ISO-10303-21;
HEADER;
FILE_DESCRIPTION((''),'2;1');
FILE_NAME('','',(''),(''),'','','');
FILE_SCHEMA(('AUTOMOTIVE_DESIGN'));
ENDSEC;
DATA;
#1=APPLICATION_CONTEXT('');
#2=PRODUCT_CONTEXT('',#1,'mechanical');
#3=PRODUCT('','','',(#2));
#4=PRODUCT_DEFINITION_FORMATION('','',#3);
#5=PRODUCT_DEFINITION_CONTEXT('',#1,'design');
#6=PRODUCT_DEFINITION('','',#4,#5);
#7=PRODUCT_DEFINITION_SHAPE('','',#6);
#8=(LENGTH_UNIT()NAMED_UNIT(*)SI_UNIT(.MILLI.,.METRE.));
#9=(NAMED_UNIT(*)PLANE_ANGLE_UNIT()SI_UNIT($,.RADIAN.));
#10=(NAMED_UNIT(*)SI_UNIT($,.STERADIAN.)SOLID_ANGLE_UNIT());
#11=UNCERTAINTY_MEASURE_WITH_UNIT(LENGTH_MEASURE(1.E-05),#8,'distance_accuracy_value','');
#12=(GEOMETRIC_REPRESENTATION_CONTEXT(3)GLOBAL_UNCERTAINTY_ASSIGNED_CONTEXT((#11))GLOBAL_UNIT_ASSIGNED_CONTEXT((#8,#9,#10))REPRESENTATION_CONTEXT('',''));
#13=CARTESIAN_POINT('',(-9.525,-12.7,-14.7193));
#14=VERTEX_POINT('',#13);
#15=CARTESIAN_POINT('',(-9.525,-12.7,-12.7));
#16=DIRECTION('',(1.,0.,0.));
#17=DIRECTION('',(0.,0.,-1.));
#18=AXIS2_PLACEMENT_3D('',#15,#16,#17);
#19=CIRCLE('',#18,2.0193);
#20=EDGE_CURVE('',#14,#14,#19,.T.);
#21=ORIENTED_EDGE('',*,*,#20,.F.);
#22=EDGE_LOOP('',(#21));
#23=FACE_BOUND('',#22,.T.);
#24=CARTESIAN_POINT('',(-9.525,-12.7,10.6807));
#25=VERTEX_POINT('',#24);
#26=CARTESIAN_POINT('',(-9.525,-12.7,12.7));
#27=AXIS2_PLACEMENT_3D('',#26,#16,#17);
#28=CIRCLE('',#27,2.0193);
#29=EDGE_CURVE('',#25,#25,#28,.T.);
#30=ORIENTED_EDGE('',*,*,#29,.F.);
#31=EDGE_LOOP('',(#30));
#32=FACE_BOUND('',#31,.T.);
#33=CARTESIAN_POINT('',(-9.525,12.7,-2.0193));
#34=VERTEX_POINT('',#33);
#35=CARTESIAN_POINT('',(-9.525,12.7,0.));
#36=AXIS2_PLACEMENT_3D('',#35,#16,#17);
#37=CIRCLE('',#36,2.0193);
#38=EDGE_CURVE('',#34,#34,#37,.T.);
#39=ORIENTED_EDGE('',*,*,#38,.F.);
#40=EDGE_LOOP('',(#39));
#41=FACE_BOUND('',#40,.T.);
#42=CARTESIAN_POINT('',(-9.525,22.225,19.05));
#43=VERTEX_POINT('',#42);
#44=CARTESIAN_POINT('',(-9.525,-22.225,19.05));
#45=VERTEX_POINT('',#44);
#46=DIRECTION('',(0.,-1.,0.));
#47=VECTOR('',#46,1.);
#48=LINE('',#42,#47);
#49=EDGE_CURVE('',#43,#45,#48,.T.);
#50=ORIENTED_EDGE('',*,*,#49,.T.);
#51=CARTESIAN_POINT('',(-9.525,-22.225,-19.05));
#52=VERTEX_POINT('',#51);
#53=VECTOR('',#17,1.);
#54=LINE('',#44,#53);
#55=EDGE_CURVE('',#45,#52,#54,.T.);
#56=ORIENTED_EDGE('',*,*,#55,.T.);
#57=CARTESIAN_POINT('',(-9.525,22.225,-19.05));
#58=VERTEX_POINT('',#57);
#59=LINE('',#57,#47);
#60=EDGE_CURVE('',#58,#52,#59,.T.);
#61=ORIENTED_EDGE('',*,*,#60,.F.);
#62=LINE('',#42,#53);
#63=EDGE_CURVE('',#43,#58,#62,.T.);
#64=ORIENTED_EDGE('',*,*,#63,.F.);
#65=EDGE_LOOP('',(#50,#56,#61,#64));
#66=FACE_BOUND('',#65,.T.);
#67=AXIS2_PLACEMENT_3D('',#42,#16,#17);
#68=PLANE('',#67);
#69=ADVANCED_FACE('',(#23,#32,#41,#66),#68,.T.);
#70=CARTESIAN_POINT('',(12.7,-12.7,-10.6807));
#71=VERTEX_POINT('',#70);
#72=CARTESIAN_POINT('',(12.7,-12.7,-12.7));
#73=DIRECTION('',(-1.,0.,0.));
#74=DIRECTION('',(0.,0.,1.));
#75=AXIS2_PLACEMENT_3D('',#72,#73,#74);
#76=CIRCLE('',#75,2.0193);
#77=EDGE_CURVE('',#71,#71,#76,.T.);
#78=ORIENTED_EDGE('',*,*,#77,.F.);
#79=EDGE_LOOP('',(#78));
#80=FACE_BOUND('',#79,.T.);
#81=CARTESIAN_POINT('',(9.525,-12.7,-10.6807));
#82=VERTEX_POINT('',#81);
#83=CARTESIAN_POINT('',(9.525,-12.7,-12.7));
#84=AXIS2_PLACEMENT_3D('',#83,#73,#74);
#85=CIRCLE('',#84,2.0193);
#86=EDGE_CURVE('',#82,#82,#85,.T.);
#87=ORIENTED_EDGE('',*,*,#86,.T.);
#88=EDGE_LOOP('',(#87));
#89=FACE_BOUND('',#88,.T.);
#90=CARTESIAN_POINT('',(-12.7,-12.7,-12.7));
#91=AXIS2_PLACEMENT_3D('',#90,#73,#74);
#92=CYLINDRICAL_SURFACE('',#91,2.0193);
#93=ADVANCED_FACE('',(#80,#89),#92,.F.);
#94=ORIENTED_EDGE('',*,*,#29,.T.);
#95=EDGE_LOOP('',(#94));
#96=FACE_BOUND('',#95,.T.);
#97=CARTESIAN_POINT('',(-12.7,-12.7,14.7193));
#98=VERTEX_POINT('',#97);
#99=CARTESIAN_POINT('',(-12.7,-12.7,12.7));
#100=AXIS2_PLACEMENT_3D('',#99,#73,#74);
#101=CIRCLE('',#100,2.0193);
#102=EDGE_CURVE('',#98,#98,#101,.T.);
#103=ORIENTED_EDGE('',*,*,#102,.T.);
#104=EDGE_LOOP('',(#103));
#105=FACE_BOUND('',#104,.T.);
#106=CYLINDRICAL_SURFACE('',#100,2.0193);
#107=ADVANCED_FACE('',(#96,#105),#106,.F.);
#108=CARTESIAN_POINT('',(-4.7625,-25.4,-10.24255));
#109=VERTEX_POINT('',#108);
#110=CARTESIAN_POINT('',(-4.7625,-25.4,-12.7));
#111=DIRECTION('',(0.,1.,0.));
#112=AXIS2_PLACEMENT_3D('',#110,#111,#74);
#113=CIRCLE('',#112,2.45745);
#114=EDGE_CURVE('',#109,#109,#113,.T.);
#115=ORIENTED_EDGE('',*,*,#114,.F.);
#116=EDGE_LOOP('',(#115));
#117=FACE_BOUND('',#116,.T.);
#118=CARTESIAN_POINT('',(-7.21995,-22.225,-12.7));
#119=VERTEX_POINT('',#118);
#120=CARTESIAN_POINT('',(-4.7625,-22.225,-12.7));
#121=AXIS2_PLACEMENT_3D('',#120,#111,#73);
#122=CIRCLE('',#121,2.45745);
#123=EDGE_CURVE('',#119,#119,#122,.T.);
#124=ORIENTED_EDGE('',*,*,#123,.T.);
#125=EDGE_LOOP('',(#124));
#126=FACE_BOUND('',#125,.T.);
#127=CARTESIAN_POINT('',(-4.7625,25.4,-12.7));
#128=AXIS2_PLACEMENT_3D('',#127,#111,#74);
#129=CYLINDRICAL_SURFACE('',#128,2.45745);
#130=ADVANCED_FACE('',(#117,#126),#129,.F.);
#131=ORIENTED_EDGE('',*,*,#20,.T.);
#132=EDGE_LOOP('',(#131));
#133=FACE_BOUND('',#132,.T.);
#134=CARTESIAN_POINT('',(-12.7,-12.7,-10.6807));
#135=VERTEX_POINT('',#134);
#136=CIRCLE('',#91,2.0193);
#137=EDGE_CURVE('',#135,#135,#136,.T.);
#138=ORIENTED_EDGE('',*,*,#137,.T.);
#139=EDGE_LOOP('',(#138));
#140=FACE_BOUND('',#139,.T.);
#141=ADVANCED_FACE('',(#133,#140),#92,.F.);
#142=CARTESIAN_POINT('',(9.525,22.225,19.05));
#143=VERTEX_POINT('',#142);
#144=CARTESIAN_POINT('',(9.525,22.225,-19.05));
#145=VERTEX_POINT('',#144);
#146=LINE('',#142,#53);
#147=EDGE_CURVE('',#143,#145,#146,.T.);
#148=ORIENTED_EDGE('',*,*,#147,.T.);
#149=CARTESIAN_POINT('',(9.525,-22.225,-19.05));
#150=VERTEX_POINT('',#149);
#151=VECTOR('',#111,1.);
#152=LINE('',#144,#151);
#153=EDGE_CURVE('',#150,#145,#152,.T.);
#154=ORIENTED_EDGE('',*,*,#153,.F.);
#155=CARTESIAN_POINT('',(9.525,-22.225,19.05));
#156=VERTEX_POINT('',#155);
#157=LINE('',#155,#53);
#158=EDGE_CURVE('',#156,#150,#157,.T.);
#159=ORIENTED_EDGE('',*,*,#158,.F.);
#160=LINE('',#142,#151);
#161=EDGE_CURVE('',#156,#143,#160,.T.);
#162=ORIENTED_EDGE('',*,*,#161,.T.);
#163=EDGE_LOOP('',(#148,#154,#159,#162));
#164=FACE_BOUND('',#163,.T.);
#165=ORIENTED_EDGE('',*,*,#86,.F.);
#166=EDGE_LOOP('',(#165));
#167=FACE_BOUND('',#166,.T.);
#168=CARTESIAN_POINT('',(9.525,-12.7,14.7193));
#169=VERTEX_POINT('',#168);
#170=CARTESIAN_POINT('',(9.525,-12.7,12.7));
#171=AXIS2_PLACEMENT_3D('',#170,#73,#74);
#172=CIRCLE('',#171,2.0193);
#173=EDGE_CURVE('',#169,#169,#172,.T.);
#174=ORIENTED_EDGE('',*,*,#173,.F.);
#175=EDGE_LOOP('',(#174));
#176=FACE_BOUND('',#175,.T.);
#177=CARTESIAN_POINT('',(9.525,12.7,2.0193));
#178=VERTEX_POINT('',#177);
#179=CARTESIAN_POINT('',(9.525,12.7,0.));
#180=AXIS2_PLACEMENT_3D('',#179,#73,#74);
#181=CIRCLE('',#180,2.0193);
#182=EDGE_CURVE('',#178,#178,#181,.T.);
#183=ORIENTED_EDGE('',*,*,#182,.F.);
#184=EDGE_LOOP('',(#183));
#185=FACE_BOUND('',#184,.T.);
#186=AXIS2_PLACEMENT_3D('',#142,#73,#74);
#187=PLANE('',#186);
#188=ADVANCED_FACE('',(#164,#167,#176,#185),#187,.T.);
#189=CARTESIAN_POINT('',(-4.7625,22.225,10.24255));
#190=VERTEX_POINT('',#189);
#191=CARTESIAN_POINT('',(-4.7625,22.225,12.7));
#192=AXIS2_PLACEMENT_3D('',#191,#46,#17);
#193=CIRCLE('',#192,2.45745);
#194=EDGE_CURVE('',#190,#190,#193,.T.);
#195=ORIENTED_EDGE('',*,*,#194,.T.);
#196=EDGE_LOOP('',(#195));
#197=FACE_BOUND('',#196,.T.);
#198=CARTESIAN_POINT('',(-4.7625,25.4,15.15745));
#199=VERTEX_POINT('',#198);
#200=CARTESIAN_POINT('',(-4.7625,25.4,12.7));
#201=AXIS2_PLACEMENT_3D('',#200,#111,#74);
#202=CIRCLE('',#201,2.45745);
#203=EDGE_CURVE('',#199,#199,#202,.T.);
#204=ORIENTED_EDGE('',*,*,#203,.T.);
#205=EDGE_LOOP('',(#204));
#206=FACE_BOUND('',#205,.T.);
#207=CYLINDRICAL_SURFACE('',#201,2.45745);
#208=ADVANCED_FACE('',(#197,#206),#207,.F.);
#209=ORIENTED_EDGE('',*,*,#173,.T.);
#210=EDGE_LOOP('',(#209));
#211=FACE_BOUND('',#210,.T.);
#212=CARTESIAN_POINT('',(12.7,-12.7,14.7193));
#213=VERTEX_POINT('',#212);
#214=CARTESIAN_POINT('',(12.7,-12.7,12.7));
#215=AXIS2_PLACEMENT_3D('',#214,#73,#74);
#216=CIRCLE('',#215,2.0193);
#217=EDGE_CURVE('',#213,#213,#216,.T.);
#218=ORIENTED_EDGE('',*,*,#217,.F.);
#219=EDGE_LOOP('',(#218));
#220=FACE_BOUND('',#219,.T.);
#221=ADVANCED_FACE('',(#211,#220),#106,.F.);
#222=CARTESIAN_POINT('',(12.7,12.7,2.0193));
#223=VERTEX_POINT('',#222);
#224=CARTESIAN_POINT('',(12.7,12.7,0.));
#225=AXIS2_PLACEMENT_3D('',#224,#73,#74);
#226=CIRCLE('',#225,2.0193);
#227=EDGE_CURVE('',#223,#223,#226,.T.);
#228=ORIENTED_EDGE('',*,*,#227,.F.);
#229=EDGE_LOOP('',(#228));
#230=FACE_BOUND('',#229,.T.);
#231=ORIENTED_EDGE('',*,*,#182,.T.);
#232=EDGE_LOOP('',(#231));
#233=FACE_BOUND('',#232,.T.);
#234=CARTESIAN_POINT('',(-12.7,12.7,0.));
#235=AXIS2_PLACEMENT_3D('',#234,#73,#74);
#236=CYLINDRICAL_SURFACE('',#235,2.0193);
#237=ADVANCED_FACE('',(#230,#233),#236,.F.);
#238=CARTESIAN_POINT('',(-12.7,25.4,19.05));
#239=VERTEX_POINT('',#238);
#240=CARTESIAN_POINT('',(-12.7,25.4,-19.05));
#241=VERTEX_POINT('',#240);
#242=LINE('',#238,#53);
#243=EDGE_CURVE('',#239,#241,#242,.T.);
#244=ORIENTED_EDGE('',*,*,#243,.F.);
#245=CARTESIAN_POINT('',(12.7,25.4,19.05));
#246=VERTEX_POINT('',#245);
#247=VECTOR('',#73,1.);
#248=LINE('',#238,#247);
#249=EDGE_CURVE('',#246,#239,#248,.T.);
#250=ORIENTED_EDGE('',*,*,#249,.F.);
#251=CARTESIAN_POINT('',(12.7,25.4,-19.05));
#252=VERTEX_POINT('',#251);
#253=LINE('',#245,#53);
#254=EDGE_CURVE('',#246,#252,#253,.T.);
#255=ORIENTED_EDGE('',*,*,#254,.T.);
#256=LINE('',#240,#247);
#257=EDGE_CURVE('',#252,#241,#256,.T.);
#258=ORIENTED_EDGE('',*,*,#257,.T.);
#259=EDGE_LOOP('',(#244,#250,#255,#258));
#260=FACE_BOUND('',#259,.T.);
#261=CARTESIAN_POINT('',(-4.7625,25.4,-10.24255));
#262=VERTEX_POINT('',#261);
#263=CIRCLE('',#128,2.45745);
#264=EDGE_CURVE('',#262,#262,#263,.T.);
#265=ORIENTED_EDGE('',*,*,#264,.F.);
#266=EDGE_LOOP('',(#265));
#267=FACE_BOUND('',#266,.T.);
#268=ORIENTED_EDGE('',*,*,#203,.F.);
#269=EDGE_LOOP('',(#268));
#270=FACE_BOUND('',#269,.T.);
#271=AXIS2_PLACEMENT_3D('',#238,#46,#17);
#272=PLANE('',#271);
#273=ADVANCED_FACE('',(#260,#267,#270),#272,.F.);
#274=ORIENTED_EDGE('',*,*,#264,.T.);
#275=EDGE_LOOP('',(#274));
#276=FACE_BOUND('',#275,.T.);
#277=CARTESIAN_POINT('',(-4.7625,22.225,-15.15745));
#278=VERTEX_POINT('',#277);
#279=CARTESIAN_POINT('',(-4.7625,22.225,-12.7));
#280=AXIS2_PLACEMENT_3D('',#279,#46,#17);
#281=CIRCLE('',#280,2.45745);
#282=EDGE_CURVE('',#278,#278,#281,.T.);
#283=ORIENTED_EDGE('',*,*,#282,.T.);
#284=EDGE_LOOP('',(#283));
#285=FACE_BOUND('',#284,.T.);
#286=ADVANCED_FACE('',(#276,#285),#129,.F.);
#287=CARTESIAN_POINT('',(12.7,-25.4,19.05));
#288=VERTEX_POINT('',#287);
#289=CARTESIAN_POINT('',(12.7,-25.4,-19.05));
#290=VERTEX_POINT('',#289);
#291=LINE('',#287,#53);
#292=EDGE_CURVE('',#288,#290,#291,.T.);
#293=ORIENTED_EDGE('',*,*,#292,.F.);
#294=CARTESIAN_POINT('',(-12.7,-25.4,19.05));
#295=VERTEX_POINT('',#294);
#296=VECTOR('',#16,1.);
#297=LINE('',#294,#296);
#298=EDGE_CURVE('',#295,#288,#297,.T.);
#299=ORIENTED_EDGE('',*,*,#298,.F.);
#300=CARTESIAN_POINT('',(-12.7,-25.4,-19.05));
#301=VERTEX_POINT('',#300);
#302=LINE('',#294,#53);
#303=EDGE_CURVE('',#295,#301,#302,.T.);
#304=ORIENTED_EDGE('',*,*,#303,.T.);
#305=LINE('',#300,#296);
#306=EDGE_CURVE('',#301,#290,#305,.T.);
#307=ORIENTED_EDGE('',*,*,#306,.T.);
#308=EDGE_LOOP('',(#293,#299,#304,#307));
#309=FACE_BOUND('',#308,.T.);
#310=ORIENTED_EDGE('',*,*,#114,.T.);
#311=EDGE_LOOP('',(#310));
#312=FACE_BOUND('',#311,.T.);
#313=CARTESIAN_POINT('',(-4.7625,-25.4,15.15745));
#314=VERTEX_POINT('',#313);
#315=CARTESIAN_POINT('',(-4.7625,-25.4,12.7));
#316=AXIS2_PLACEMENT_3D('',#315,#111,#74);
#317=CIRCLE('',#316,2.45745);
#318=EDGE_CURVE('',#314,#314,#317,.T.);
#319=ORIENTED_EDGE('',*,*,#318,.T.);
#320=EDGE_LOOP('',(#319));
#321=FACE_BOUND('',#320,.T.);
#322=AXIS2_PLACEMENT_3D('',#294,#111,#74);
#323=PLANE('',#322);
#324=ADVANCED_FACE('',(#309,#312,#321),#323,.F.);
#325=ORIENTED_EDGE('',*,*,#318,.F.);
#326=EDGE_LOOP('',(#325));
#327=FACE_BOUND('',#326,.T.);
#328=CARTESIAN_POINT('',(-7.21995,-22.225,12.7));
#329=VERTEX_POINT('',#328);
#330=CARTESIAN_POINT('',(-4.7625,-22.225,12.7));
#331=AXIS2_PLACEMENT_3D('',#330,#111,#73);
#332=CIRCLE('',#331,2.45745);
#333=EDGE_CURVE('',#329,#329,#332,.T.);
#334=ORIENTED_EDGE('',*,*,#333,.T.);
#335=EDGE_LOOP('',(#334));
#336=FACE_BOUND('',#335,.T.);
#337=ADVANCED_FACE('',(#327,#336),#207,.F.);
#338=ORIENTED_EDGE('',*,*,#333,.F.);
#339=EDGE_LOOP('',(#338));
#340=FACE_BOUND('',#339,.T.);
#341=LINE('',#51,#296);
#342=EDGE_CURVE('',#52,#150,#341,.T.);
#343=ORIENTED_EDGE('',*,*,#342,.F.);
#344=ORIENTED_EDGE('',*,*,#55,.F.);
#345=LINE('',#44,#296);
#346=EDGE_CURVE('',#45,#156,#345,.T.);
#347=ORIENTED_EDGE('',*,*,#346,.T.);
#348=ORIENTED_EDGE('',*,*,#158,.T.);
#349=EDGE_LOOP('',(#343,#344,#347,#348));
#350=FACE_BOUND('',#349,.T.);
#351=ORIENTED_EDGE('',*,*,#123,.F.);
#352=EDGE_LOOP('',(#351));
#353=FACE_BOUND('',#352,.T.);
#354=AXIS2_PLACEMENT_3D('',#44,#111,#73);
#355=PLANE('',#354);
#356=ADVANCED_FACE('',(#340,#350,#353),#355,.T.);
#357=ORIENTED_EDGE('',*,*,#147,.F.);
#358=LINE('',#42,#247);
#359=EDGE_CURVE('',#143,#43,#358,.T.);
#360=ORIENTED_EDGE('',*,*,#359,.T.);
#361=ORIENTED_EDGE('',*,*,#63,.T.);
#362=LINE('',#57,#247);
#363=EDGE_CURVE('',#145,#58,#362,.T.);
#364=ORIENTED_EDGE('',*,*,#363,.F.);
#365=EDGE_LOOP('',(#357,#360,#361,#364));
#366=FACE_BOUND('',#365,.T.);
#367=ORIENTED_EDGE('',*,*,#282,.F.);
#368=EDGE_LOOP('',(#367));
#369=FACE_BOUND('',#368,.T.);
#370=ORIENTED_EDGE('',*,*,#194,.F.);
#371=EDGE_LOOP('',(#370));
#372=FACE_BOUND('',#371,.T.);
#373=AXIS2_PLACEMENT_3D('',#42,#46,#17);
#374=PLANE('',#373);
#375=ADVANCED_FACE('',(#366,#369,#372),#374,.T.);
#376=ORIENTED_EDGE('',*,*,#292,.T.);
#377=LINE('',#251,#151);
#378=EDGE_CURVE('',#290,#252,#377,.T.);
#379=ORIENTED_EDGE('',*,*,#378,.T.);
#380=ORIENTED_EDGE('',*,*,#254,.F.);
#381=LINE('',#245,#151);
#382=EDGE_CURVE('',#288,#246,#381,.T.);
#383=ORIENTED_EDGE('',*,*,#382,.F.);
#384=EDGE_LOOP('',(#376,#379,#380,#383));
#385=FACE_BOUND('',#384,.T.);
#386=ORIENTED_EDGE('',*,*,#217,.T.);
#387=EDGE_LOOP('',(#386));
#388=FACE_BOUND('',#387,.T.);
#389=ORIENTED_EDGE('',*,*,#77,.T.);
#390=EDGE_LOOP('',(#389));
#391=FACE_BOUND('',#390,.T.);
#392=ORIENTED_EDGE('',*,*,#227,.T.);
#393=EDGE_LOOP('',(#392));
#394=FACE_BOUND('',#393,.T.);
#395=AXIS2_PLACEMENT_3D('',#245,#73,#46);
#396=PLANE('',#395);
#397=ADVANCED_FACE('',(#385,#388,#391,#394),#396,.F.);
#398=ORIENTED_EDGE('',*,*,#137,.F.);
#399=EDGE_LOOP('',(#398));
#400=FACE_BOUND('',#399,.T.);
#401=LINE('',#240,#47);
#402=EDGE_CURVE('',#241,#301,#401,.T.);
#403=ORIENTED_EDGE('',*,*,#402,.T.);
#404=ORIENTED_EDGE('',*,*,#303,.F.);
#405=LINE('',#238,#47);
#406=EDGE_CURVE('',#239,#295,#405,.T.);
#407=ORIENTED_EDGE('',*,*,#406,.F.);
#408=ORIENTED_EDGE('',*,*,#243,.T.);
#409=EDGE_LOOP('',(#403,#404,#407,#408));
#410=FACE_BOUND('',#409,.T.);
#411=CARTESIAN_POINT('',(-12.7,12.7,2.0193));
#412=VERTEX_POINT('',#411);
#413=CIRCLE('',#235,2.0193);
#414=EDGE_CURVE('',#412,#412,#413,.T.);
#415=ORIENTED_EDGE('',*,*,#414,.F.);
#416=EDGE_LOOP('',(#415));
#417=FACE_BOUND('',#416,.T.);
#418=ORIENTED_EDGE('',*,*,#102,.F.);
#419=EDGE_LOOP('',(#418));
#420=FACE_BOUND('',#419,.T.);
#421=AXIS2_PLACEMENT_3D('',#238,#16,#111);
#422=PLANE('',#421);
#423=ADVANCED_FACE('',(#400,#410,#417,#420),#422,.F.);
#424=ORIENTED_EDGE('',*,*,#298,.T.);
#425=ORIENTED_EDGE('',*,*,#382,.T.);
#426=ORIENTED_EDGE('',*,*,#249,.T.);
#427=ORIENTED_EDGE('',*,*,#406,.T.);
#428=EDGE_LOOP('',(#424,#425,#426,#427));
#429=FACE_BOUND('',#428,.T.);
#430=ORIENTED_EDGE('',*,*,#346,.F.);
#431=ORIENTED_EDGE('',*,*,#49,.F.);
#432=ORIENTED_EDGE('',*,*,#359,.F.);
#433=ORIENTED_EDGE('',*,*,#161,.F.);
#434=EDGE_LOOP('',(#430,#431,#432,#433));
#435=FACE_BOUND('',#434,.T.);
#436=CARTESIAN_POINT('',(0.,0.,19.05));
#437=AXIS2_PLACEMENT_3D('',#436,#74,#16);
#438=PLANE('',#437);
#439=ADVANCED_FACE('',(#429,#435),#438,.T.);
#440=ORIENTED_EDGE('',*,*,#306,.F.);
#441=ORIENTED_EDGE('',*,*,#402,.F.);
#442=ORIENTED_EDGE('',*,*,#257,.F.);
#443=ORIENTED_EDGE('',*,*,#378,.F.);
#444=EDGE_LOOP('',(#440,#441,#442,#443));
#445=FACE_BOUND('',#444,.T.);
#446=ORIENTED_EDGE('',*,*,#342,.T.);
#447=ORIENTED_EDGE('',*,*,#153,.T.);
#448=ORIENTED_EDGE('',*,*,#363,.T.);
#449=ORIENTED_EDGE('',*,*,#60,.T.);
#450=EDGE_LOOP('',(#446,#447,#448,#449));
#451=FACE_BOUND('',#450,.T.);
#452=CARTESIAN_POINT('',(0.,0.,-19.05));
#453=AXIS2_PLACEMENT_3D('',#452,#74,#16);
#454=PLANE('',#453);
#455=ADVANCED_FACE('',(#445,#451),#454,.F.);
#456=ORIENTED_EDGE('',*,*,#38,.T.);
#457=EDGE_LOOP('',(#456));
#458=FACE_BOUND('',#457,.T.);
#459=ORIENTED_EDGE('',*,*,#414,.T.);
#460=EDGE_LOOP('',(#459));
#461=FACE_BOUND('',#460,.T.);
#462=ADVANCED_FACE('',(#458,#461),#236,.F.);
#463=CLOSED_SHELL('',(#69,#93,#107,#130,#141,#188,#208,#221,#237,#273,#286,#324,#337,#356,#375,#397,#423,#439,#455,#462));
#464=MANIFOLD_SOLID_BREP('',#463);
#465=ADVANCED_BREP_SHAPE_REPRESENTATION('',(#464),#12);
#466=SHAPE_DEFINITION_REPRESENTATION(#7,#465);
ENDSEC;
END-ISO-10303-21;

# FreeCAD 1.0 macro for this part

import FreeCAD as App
import Part
import Sketcher

V = App.Vector
Q = App.Units.Quantity

doc = App.newDocument("Part")
body = doc.addObject("PartDesign::Body", "Body")

# Sketch on XY plane
sketch1 = body.newObject("Sketcher::SketchObject", "Sketch")
sketch1.AttachmentSupport = (doc.getObject("XY_Plane"), [""])
sketch1.MapMode = "FlatFace"
sketch1.addGeometry(Part.LineSegment(V(-13, 25, 0), V(-13, -25, 0)), False)
sketch1.addGeometry(Part.LineSegment(V(-13, -25, 0), V(13, -25, 0)), False)
sketch1.addGeometry(Part.LineSegment(V(13, -25, 0), V(13, 25, 0)), False)
sketch1.addGeometry(Part.LineSegment(V(13, 25, 0), V(-13, 25, 0)), False)
sketch1.addGeometry(Part.LineSegment(V(10, -22, 0), V(-10, -22, 0)), False)
sketch1.addGeometry(Part.LineSegment(V(-10, -22, 0), V(-10, 22, 0)), False)
sketch1.addGeometry(Part.LineSegment(V(-10, 22, 0), V(10, 22, 0)), False)
sketch1.addGeometry(Part.LineSegment(V(10, 22, 0), V(10, -22, 0)), False)
sketch1.addConstraint(Sketcher.Constraint("Coincident", 0, 2, 1, 1))
sketch1.addConstraint(Sketcher.Constraint("Coincident", 1, 2, 2, 1))
sketch1.addConstraint(Sketcher.Constraint("Coincident", 2, 2, 3, 1))
sketch1.addConstraint(Sketcher.Constraint("Coincident", 3, 2, 0, 1))
sketch1.addConstraint(Sketcher.Constraint("Coincident", 4, 2, 5, 1))
sketch1.addConstraint(Sketcher.Constraint("Coincident", 5, 2, 6, 1))
sketch1.addConstraint(Sketcher.Constraint("Coincident", 6, 2, 7, 1))
sketch1.addConstraint(Sketcher.Constraint("Coincident", 7, 2, 4, 1))
sketch1.addConstraint(Sketcher.Constraint("Vertical", 0))
sketch1.addConstraint(Sketcher.Constraint("Horizontal", 1))
sketch1.addConstraint(Sketcher.Constraint("Vertical", 2))
sketch1.addConstraint(Sketcher.Constraint("Horizontal", 3))
sketch1.addConstraint(Sketcher.Constraint("Horizontal", 4))
sketch1.addConstraint(Sketcher.Constraint("Vertical", 5))
sketch1.addConstraint(Sketcher.Constraint("Horizontal", 6))
sketch1.addConstraint(Sketcher.Constraint("Vertical", 7))
sketch1.addConstraint(Sketcher.Constraint("Symmetric", 0, 2, 2, 2, -1, 1))
sketch1.addConstraint(Sketcher.Constraint("Symmetric", 4, 2, 6, 2, -1, 1))
sketch1.addConstraint(Sketcher.Constraint("DistanceX", 1, 1, 1, 2, Q("1 in")))
sketch1.addConstraint(Sketcher.Constraint("DistanceY", 0, 2, 0, 1, Q("2 in")))
sketch1.addConstraint(Sketcher.Constraint("DistanceX", 4, 2, 4, 1, Q("0.75 in")))
sketch1.addConstraint(Sketcher.Constraint("DistanceY", 5, 1, 5, 2, Q("1.75 in")))
pad1 = body.newObject("PartDesign::Pad", "Pad")
pad1.Profile = sketch1
pad1.Length = Q("1.5 in")
pad1.Midplane = True

# Sketch on XZ plane
sketch2 = body.newObject("Sketcher::SketchObject", "Sketch001")
sketch2.AttachmentSupport = (doc.getObject("XZ_Plane"), [""])
sketch2.MapMode = "FlatFace"
sketch2.AttachmentOffset = App.Placement(V(0, 0, -1 * 25.4), App.Rotation())
sketch2.addGeometry(Part.Circle(V(-4.8, 12.7, 0), V(0, 0, 1), 2.5), False)
sketch2.addGeometry(Part.Circle(V(-4.8, -12.7, 0), V(0, 0, 1), 2.5), False)
sketch2.addConstraint(Sketcher.Constraint("Equal", 0, 1))
sketch2.addConstraint(Sketcher.Constraint("Symmetric", 0, 3, 1, 3, -1))
sketch2.addConstraint(Sketcher.Constraint("DistanceY", 1, 3, 0, 3, Q("1 in")))
sketch2.addConstraint(Sketcher.Constraint("Diameter", 0, Q("0.1935 in")))
sketch2.addConstraint(Sketcher.Constraint("DistanceX", 0, 3, -1, 1, Q("0.1875 in")))
doc.recompute()
hole = body.newObject("PartDesign::Hole", "Hole")
hole.Profile = sketch2
hole.ThreadType = "None"
hole.Diameter = Q("0.1935 in")
hole.DepthType = "ThroughAll"
hole.Reversed = True

# Sketch on YZ plane
sketch3 = body.newObject("Sketcher::SketchObject", "Sketch002")
sketch3.AttachmentSupport = (doc.getObject("YZ_Plane"), [""])
sketch3.MapMode = "FlatFace"
sketch3.AttachmentOffset = App.Placement(V(0, 0, -0.5 * 25.4), App.Rotation())
sketch3.addGeometry(Part.Circle(V(-12.7, -12.7, 0), V(0, 0, 1), 2), False)
sketch3.addGeometry(Part.Circle(V(-12.7, 12.7, 0), V(0, 0, 1), 2), False)
sketch3.addGeometry(Part.Circle(V(12.7, 0, 0), V(0, 0, 1), 2), False)
sketch3.addConstraint(Sketcher.Constraint("Equal", 0, 1))
sketch3.addConstraint(Sketcher.Constraint("Equal", 1, 2))
sketch3.addConstraint(Sketcher.Constraint("Symmetric", 0, 3, 1, 3, -1))
sketch3.addConstraint(Sketcher.Constraint("PointOnObject", 2, 3, -1))
sketch3.addConstraint(Sketcher.Constraint("Diameter", 0, Q("0.159 in")))
sketch3.addConstraint(Sketcher.Constraint("DistanceY", 0, 3, 1, 3, Q("1 in")))
sketch3.addConstraint(Sketcher.Constraint("DistanceX", 0, 3, 2, 3, Q("1 in")))
sketch3.addConstraint(Sketcher.Constraint("DistanceX", 0, 3, -1, 1, Q("0.5 in")))
doc.recompute()
hole2 = body.newObject("PartDesign::Hole", "Hole001")
hole2.Profile = sketch3
hole2.ThreadType = "None"
hole2.Diameter = Q("0.159 in")
hole2.DepthType = "ThroughAll"
hole2.Reversed = True

doc.recompute()
